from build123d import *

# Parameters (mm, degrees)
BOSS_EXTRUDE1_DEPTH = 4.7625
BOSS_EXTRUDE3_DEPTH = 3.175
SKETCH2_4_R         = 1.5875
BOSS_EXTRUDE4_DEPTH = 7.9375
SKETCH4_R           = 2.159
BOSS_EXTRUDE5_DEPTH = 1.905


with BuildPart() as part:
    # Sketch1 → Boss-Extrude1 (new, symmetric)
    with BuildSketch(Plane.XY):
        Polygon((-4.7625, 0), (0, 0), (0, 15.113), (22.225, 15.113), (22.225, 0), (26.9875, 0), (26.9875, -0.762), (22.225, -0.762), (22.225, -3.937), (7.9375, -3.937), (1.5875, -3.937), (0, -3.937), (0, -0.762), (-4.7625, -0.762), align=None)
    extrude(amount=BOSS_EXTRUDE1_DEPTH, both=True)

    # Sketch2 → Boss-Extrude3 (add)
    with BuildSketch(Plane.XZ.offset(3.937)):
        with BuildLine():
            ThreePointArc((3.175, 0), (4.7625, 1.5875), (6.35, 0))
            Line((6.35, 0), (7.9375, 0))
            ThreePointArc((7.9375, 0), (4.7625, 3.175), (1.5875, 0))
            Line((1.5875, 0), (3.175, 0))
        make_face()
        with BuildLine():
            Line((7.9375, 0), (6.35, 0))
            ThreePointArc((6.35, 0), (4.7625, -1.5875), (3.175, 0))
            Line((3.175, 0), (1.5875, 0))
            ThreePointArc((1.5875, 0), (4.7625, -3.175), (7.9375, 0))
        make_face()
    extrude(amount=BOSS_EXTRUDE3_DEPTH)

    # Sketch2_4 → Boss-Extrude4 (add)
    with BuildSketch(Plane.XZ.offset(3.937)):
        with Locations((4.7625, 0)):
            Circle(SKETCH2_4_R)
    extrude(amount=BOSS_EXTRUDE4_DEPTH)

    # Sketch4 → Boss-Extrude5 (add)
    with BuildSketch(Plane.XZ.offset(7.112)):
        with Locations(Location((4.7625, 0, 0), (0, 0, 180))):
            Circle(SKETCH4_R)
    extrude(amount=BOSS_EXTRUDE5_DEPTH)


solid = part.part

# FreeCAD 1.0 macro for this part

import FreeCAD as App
import Part
import Sketcher

V = App.Vector
Q = App.Units.Quantity

doc = App.newDocument("Part")
body = doc.addObject("PartDesign::Body", "Body")

# Sketch on XY plane
sketch1 = doc.addObject("Sketcher::SketchObject", "Sketch")
body.addObject(sketch1)
sketch1.AttachmentSupport = (doc.XY_Plane, [""])
sketch1.MapMode = "FlatFace"
sketch1.addGeometry(Part.LineSegment(V(0, 0, 0), V(-4.8, 0, 0)), False)
sketch1.addGeometry(Part.LineSegment(V(-4.8, 0, 0), V(-4.8, -0.8, 0)), False)
sketch1.addGeometry(Part.LineSegment(V(-4.8, -0.8, 0), V(0, -0.8, 0)), False)
sketch1.addGeometry(Part.LineSegment(V(0, -0.8, 0), V(0, -3.9, 0)), False)
sketch1.addGeometry(Part.LineSegment(V(0, -3.9, 0), V(22.2, -3.9, 0)), False)
sketch1.addGeometry(Part.LineSegment(V(22.2, -3.9, 0), V(22.2, -0.8, 0)), False)
sketch1.addGeometry(Part.LineSegment(V(22.2, -0.8, 0), V(27, -0.8, 0)), False)
sketch1.addGeometry(Part.LineSegment(V(27, -0.8, 0), V(27, 0, 0)), False)
sketch1.addGeometry(Part.LineSegment(V(27, 0, 0), V(22.2, 0, 0)), False)
sketch1.addGeometry(Part.LineSegment(V(22.2, 0, 0), V(22.2, 15.1, 0)), False)
sketch1.addGeometry(Part.LineSegment(V(22.2, 15.1, 0), V(0, 15.1, 0)), False)
sketch1.addGeometry(Part.LineSegment(V(0, 15.1, 0), V(0, 0, 0)), False)
sketch1.addConstraint(Sketcher.Constraint("Coincident", 0, 2, 1, 1))
sketch1.addConstraint(Sketcher.Constraint("Coincident", 1, 2, 2, 1))
sketch1.addConstraint(Sketcher.Constraint("Coincident", 2, 2, 3, 1))
sketch1.addConstraint(Sketcher.Constraint("Coincident", 3, 2, 4, 1))
sketch1.addConstraint(Sketcher.Constraint("Coincident", 4, 2, 5, 1))
sketch1.addConstraint(Sketcher.Constraint("Coincident", 5, 2, 6, 1))
sketch1.addConstraint(Sketcher.Constraint("Coincident", 6, 2, 7, 1))
sketch1.addConstraint(Sketcher.Constraint("Coincident", 7, 2, 8, 1))
sketch1.addConstraint(Sketcher.Constraint("Coincident", 8, 2, 9, 1))
sketch1.addConstraint(Sketcher.Constraint("Coincident", 9, 2, 10, 1))
sketch1.addConstraint(Sketcher.Constraint("Coincident", 10, 2, 11, 1))
sketch1.addConstraint(Sketcher.Constraint("Coincident", 11, 2, 0, 1))
sketch1.addConstraint(Sketcher.Constraint("Horizontal", 0))
sketch1.addConstraint(Sketcher.Constraint("Vertical", 1))
sketch1.addConstraint(Sketcher.Constraint("Horizontal", 2))
sketch1.addConstraint(Sketcher.Constraint("Vertical", 3))
sketch1.addConstraint(Sketcher.Constraint("Horizontal", 4))
sketch1.addConstraint(Sketcher.Constraint("Vertical", 5))
sketch1.addConstraint(Sketcher.Constraint("Horizontal", 6))
sketch1.addConstraint(Sketcher.Constraint("Vertical", 7))
sketch1.addConstraint(Sketcher.Constraint("Horizontal", 8))
sketch1.addConstraint(Sketcher.Constraint("Vertical", 9))
sketch1.addConstraint(Sketcher.Constraint("Horizontal", 10))
sketch1.addConstraint(Sketcher.Constraint("Vertical", 11))
sketch1.addConstraint(Sketcher.Constraint("Coincident", 11, 2, -1, 1))
sketch1.addConstraint(Sketcher.Constraint("PointOnObject", 2, 2, -2))
sketch1.addConstraint(Sketcher.Constraint("PointOnObject", 7, 2, -1))
sketch1.addConstraint(Sketcher.Constraint("Horizontal", 2, 2, 5, 2))
sketch1.addConstraint(Sketcher.Constraint("Vertical", 5, 2, 8, 2))
sketch1.addConstraint(Sketcher.Constraint("Equal", 2, 6))
sketch1.addConstraint(Sketcher.Constraint("DistanceY", 1, 2, 1, 1, Q("0.03 in")))
sketch1.addConstraint(Sketcher.Constraint("DistanceX", 0, 2, 0, 1, Q("0.1875 in")))
sketch1.addConstraint(Sketcher.Constraint("DistanceX", 4, 1, 4, 2, Q("0.875 in")))
sketch1.addConstraint(Sketcher.Constraint("DistanceY", 3, 2, 3, 1, Q("0.125 in")))
sketch1.addConstraint(Sketcher.Constraint("DistanceY", 9, 1, 9, 2, Q("0.595 in")))
pad1 = doc.addObject("PartDesign::Pad", "Pad")
body.addObject(pad1)
pad1.Profile = sketch1
pad1.Length = Q("0.375 in")
pad1.Midplane = True

# Sketch on XZ plane
sketch2 = doc.addObject("Sketcher::SketchObject", "Sketch001")
body.addObject(sketch2)
sketch2.AttachmentSupport = (doc.XZ_Plane, [""])
sketch2.MapMode = "FlatFace"
sketch2.AttachmentOffset = App.Placement(V(0, 0, 0.155 * 25.4), App.Rotation())
sketch2.addGeometry(Part.Circle(V(4.8, 0, 0), V(0, 0, 1), 3.2), False)
sketch2.addGeometry(Part.Circle(V(4.8, 0, 0), V(0, 0, 1), 1.6), False)
sketch2.addConstraint(Sketcher.Constraint("Coincident", 1, 3, 0, 3))
sketch2.addConstraint(Sketcher.Constraint("PointOnObject", 0, 3, -1))
sketch2.addConstraint(Sketcher.Constraint("Diameter", 0, Q("0.25 in")))
sketch2.addConstraint(Sketcher.Constraint("Diameter", 1, Q("0.125 in")))
sketch2.addConstraint(Sketcher.Constraint("DistanceX", -1, 1, 0, 3, Q("0.1875 in")))
pad2 = doc.addObject("PartDesign::Pad", "Pad001")
body.addObject(pad2)
pad2.Profile = sketch2
pad2.Length = Q("0.125 in")

# Sketch on XZ plane
sketch3 = doc.addObject("Sketcher::SketchObject", "Sketch002")
body.addObject(sketch3)
sketch3.AttachmentSupport = (doc.XZ_Plane, [""])
sketch3.MapMode = "FlatFace"
sketch3.AttachmentOffset = App.Placement(V(0, 0, 0.155 * 25.4), App.Rotation())
sketch3.addGeometry(Part.Circle(V(4.8, 0, 0), V(0, 0, 1), 1.6), False)
sketch3.addConstraint(Sketcher.Constraint("PointOnObject", 0, 3, -1))
sketch3.addConstraint(Sketcher.Constraint("Diameter", 0, Q("0.125 in")))
sketch3.addConstraint(Sketcher.Constraint("DistanceX", -1, 1, 0, 3, Q("0.1875 in")))
pad3 = doc.addObject("PartDesign::Pad", "Pad002")
body.addObject(pad3)
pad3.Profile = sketch3
pad3.Length = Q("0.3125 in")

# Sketch on XZ plane
sketch4 = doc.addObject("Sketcher::SketchObject", "Sketch003")
body.addObject(sketch4)
sketch4.AttachmentSupport = (doc.XZ_Plane, [""])
sketch4.MapMode = "FlatFace"
sketch4.AttachmentOffset = App.Placement(V(0, 0, 0.28 * 25.4), App.Rotation())
sketch4.addGeometry(Part.Circle(V(4.8, 0, 0), V(0, 0, 1), 2.2), False)
sketch4.addConstraint(Sketcher.Constraint("PointOnObject", 0, 3, -1))
sketch4.addConstraint(Sketcher.Constraint("Diameter", 0, Q("0.17 in")))
sketch4.addConstraint(Sketcher.Constraint("DistanceX", -1, 1, 0, 3, Q("0.1875 in")))
pad4 = doc.addObject("PartDesign::Pad", "Pad003")
body.addObject(pad4)
pad4.Profile = sketch4
pad4.Length = Q("0.075 in")

doc.recompute()
